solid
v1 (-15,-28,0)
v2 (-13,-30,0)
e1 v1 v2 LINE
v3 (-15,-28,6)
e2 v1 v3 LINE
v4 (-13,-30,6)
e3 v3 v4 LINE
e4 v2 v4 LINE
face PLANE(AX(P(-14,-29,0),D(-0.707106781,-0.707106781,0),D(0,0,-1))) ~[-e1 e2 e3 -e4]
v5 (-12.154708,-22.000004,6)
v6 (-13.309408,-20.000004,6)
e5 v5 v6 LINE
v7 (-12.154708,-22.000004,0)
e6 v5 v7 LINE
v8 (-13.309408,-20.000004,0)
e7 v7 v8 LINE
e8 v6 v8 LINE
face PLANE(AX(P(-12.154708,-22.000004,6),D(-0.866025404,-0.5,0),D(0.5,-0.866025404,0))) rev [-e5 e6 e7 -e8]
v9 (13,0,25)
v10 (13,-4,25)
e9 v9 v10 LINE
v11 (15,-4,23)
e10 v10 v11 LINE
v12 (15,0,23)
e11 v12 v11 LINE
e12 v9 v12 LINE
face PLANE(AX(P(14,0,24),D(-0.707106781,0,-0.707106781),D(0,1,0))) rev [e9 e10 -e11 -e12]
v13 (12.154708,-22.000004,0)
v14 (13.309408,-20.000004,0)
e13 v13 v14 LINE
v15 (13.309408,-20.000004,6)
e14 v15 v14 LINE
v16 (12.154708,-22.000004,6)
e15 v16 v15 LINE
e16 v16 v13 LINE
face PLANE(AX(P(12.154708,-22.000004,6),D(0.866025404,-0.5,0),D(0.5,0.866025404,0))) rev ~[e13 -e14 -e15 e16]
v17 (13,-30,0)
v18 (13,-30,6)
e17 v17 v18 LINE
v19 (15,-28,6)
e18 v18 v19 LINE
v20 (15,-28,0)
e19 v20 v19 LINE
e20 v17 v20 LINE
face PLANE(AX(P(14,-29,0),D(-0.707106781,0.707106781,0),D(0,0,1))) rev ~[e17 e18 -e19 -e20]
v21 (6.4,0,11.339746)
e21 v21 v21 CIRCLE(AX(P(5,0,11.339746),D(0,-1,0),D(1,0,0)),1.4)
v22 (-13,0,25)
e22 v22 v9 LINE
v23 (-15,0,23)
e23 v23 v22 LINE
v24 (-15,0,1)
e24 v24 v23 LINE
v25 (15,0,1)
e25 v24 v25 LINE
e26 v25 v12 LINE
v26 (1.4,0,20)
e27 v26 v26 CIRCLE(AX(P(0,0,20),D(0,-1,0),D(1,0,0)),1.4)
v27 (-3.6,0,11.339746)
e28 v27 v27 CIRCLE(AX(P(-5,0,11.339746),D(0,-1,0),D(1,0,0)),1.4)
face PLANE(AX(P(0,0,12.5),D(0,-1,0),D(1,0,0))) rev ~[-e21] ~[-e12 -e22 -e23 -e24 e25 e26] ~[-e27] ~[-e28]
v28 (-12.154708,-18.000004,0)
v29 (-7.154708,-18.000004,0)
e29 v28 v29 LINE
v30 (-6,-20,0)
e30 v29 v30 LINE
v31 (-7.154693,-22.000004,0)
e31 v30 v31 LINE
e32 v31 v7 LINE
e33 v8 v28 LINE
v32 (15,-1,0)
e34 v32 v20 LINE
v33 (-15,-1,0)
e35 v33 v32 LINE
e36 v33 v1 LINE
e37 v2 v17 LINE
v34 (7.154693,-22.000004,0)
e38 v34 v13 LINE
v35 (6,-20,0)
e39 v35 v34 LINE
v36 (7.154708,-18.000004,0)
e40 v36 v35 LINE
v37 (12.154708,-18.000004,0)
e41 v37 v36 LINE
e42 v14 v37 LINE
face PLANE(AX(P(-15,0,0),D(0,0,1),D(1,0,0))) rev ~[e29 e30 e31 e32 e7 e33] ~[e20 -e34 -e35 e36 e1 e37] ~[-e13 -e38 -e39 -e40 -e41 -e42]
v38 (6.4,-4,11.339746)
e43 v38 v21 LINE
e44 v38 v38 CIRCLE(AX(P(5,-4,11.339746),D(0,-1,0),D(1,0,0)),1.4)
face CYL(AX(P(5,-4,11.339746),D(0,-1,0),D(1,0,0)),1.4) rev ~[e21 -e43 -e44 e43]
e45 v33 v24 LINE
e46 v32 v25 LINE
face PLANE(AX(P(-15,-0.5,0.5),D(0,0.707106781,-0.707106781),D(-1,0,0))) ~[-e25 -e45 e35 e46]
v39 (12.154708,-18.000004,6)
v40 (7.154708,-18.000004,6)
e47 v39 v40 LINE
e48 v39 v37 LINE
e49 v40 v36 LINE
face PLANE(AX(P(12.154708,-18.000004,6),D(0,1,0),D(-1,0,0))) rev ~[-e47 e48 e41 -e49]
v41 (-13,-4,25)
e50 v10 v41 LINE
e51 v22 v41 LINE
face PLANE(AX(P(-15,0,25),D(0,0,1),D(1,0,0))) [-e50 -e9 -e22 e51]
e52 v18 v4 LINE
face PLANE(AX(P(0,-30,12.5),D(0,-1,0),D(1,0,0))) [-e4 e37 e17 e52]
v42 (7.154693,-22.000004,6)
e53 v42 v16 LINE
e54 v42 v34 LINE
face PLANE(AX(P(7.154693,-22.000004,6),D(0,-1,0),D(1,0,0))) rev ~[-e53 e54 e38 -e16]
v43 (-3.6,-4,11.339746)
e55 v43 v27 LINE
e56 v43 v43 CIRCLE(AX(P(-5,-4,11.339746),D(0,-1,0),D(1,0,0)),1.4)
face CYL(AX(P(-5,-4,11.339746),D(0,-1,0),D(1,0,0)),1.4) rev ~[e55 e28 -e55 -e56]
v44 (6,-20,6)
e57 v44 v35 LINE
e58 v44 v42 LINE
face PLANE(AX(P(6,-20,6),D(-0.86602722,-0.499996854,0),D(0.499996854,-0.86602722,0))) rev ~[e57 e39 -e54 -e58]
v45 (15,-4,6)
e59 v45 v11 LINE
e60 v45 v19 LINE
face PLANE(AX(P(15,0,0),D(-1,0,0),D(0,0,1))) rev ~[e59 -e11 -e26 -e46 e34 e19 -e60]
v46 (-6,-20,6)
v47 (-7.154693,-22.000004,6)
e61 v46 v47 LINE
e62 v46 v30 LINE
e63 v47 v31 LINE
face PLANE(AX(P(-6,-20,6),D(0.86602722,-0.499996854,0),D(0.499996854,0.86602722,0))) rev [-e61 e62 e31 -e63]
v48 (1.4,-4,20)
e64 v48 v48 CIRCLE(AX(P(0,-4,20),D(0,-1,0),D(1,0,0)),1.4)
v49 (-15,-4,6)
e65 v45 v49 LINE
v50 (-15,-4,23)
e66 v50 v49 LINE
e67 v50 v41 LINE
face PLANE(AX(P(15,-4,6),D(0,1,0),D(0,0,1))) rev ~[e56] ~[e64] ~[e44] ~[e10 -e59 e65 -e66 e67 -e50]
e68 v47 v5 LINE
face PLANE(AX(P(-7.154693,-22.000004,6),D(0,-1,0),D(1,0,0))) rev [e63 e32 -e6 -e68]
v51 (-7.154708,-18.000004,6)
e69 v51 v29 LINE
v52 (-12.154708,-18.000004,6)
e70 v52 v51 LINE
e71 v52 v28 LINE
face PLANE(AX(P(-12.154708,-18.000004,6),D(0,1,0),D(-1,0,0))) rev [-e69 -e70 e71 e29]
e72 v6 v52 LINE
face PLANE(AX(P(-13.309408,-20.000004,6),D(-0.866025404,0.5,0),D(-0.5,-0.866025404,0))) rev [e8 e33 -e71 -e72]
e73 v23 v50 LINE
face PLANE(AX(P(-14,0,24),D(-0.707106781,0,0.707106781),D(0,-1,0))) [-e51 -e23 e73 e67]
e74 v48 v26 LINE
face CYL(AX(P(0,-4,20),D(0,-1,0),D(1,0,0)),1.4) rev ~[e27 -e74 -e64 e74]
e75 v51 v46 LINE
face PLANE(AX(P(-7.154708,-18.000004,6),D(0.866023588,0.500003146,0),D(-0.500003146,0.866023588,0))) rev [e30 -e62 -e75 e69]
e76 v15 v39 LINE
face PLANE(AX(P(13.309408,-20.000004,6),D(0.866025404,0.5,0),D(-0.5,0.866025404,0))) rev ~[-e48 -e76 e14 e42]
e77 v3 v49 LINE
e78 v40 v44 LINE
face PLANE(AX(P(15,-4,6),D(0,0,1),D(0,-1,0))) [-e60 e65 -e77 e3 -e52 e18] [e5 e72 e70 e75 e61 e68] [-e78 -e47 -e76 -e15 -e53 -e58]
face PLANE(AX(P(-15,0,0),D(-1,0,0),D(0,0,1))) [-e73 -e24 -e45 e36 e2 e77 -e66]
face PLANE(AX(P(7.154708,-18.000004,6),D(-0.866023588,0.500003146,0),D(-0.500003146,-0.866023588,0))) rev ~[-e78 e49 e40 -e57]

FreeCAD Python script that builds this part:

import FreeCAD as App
import Part
import Sketcher

V = App.Vector
Q = App.Units.Quantity


def edges_at(feature, points):
    """Names of the edges that pass closest to the given points."""
    edges = feature.Shape.Edges
    near = lambda p: min(range(len(edges)), key=lambda i: edges[i].distToShape(Part.Vertex(*p))[0])
    return sorted({f"Edge{near(p) + 1}" for p in points})


def add_polygon(sketch, points):
    """Adds a closed chain of lines whose ends are joined by coincident constraints."""
    first, n = sketch.GeometryCount, len(points)
    for a, b in zip(points, points[1:] + points[:1]):
        sketch.addGeometry(Part.LineSegment(App.Vector(*a, 0), App.Vector(*b, 0)), False)
    for i in range(n):
        sketch.addConstraint(Sketcher.Constraint("Coincident", first + i, 2, first + (i + 1) % n, 1))

doc = App.newDocument("Part")
body = doc.addObject("PartDesign::Body", "Body")

# Sketch on XZ plane
sketch1 = body.newObject("Sketcher::SketchObject", "Sketch")
sketch1.AttachmentSupport = (doc.getObject("XZ_Plane"), [""])
sketch1.MapMode = "FlatFace"
add_polygon(sketch1, [(-15, 25), (-15, 0), (15, 0), (15, 25)])  # lines 0-3
sketch1.addConstraint(Sketcher.Constraint("Vertical", 0))
sketch1.addConstraint(Sketcher.Constraint("Horizontal", 1))
sketch1.addConstraint(Sketcher.Constraint("Vertical", 2))
sketch1.addConstraint(Sketcher.Constraint("Horizontal", 3))
sketch1.addConstraint(Sketcher.Constraint("Symmetric", 0, 2, 1, 2, -1, 1))
sketch1.addConstraint(Sketcher.Constraint("DistanceX", 1, 1, 1, 2, 30.0))
sketch1.addConstraint(Sketcher.Constraint("DistanceY", 0, 2, 0, 1, 25.0))
pad1 = body.newObject("PartDesign::Pad", "Pad")
pad1.Profile = sketch1
pad1.Length = 30

# Sketch on YZ plane
sketch2 = body.newObject("Sketcher::SketchObject", "Sketch001")
sketch2.AttachmentSupport = (doc.getObject("YZ_Plane"), [""])
sketch2.MapMode = "FlatFace"
sketch2.AttachmentOffset = App.Placement(V(0, 0, 15), App.Rotation())
add_polygon(sketch2, [(-35, 6), (-4, 6), (-4, 27), (-35, 27)])  # lines 0-3
sketch2.addConstraint(Sketcher.Constraint("Horizontal", 0))
sketch2.addConstraint(Sketcher.Constraint("Vertical", 1))
sketch2.addConstraint(Sketcher.Constraint("Horizontal", 2))
sketch2.addConstraint(Sketcher.Constraint("Vertical", 3))
sketch2.addConstraint(Sketcher.Constraint("DistanceX", 0, 2, -1, 1, 4.0))
sketch2.addConstraint(Sketcher.Constraint("DistanceY", -1, 1, 0, 2, 6.0))
sketch2.addConstraint(Sketcher.Constraint("DistanceX", 0, 1, 0, 2, 31.024467))
sketch2.addConstraint(Sketcher.Constraint("DistanceY", 1, 1, 1, 2, 20.784298))
pocket1 = body.newObject("PartDesign::Pocket", "Pocket")
pocket1.Profile = sketch2
pocket1.Type = "ThroughAll"

# Sketch on XY plane
sketch3 = body.newObject("Sketcher::SketchObject", "Sketch002")
sketch3.AttachmentSupport = (doc.getObject("XY_Plane"), [""])
sketch3.MapMode = "FlatFace"
sketch3.AttachmentOffset = App.Placement(V(0, 0, 6), App.Rotation())
add_polygon(sketch3, [(12.2, -18), (7.2, -18), (6, -20), (7.2, -22), (12.2, -22), (13.3, -20)])  # lines 0-5
sketch3.addConstraint(Sketcher.Constraint("Horizontal", 0))
sketch3.addConstraint(Sketcher.Constraint("Horizontal", 3))
sketch3.addConstraint(Sketcher.Constraint("Vertical", 3, 2, 5, 2))
sketch3.addConstraint(Sketcher.Constraint("Equal", 1, 2))
sketch3.addConstraint(Sketcher.Constraint("Equal", 2, 4))
sketch3.addConstraint(Sketcher.Constraint("Equal", 4, 5))
sketch3.addConstraint(Sketcher.Constraint("DistanceX", 0, 2, 0, 1, 5.0))
sketch3.addConstraint(Sketcher.Constraint("Angle", 4, Q("60 deg")))
sketch3.addConstraint(Sketcher.Constraint("DistanceX", -1, 1, 1, 2, 6.0))
sketch3.addConstraint(Sketcher.Constraint("DistanceY", 1, 2, -1, 1, 20.0))
sketch3.addConstraint(Sketcher.Constraint("DistanceY", 2, 2, 0, 2, 4.0))
sketch3.addConstraint(Sketcher.Constraint("DistanceX", 3, 1, 3, 2, 5.000015))
pocket2 = body.newObject("PartDesign::Pocket", "Pocket001")
pocket2.Profile = sketch3
pocket2.Type = "ThroughAll"
doc.recompute()

mirrored = body.newObject("PartDesign::Mirrored", "Mirrored")
mirrored.Originals = [pocket2]
mirrored.MirrorPlane = (doc.getObject("YZ_Plane"), [""])
body.Tip = mirrored

# Sketch on XZ plane
sketch4 = body.newObject("Sketcher::SketchObject", "Sketch003")
sketch4.AttachmentSupport = (doc.getObject("XZ_Plane"), [""])
sketch4.MapMode = "FlatFace"
sketch4.AttachmentOffset = App.Placement(V(0, 0, 4), App.Rotation())
sketch4.addGeometry(Part.Circle(V(0, 20, 0), V(0, 0, 1), 1.4), False)
sketch4.addGeometry(Part.Circle(V(5, 11.3, 0), V(0, 0, 1), 1.4), False)
sketch4.addGeometry(Part.Circle(V(-5, 11.3, 0), V(0, 0, 1), 1.4), False)
sketch4.addConstraint(Sketcher.Constraint("Equal", 0, 1))
sketch4.addConstraint(Sketcher.Constraint("Equal", 1, 2))
sketch4.addConstraint(Sketcher.Constraint("Symmetric", 1, 3, 2, 3, -2))
sketch4.addConstraint(Sketcher.Constraint("PointOnObject", 0, 3, -2))
sketch4.addConstraint(Sketcher.Constraint("Diameter", 0, 2.8))
sketch4.addConstraint(Sketcher.Constraint("DistanceY", -1, 1, 0, 3, 20.0))
sketch4.addConstraint(Sketcher.Constraint("DistanceX", -1, 1, 1, 3, 5.0))
sketch4.addConstraint(Sketcher.Constraint("DistanceY", -1, 1, 1, 3, 11.339746))
pocket3 = body.newObject("PartDesign::Pocket", "Pocket002")
pocket3.Profile = sketch4
pocket3.Length = 5
doc.recompute()

chamfer = body.newObject("PartDesign::Chamfer", "Chamfer")
chamfer.Base = (pocket3, edges_at(pocket3, [(-15, -2, 25), (15, -2, 25)]))
chamfer.Size = 2
doc.recompute()

chamfer2 = body.newObject("PartDesign::Chamfer", "Chamfer001")
chamfer2.Base = (chamfer, edges_at(chamfer, [(15, -30, 3), (-15, -30, 3)]))
chamfer2.Size = 2
doc.recompute()

chamfer3 = body.newObject("PartDesign::Chamfer", "Chamfer002")
chamfer3.Base = (chamfer2, edges_at(chamfer2, [(0, 0, 0)]))
chamfer3.Size = 1

doc.recompute()
